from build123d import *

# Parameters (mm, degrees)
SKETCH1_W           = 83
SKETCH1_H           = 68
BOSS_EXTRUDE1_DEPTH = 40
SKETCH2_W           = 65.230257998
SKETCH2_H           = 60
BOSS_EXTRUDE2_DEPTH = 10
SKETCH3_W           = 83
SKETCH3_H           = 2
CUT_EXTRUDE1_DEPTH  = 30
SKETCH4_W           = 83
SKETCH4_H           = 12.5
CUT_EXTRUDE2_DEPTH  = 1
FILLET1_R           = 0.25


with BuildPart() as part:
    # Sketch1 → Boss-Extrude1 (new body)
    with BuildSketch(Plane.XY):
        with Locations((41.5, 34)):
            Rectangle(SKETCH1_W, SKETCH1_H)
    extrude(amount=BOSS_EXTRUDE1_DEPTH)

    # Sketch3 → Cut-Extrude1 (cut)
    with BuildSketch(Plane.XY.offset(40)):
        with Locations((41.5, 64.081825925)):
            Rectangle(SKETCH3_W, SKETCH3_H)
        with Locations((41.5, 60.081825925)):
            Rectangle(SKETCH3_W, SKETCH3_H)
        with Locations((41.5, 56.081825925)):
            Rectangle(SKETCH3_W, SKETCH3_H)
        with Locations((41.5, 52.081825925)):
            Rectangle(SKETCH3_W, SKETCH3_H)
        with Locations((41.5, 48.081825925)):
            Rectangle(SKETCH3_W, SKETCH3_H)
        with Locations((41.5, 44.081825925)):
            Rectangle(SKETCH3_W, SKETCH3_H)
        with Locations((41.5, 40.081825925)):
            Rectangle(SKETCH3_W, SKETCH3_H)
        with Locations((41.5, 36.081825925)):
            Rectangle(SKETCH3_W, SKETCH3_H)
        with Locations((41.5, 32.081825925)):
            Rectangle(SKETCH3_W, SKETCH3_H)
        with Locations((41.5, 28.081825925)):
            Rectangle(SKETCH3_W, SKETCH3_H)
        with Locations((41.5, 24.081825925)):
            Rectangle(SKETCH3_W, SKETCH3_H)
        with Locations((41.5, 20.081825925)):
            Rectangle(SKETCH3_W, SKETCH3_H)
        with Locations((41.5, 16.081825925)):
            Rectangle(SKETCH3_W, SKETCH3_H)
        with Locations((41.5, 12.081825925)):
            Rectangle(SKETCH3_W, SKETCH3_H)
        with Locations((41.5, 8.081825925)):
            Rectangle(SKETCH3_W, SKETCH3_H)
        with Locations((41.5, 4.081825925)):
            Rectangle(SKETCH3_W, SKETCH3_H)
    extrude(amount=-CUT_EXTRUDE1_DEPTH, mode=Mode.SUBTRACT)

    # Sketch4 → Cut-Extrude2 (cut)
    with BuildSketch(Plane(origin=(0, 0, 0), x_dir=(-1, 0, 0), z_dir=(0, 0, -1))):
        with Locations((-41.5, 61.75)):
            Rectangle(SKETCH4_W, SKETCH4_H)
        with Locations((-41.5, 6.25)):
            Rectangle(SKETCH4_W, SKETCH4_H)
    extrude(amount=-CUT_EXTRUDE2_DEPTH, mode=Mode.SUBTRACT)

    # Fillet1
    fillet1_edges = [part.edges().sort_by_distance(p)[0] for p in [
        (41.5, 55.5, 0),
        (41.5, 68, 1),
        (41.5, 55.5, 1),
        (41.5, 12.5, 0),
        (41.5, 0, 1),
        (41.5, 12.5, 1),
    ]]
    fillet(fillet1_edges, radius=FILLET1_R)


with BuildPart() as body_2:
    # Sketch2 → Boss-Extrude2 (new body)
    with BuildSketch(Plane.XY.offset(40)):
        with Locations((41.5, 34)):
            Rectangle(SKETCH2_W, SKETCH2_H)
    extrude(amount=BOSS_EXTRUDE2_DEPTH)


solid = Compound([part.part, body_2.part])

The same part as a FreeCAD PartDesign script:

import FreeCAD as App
import Part
import Sketcher

V = App.Vector


def edges_at(feature, points):
    """Names of the edges that pass closest to the given points."""
    edges = feature.Shape.Edges
    near = lambda p: min(range(len(edges)), key=lambda i: edges[i].distToShape(Part.Vertex(*p))[0])
    return sorted({f"Edge{near(p) + 1}" for p in points})

doc = App.newDocument("Part")
body = doc.addObject("PartDesign::Body", "Body")

# Sketch on XY plane
sketch1 = body.newObject("Sketcher::SketchObject", "Sketch")
sketch1.AttachmentSupport = (doc.getObject("XY_Plane"), [""])
sketch1.MapMode = "FlatFace"
sketch1.addGeometry([
    Part.LineSegment(V(0, 68, 0), V(0, 0, 0)),
    Part.LineSegment(V(0, 0, 0), V(83, 0, 0)),
    Part.LineSegment(V(83, 0, 0), V(83, 68, 0)),
    Part.LineSegment(V(83, 68, 0), V(0, 68, 0)),
], False)
sketch1.addConstraint([
    Sketcher.Constraint("Coincident", 0, 2, 1, 1),
    Sketcher.Constraint("Coincident", 1, 2, 2, 1),
    Sketcher.Constraint("Coincident", 2, 2, 3, 1),
    Sketcher.Constraint("Coincident", 3, 2, 0, 1),
    Sketcher.Constraint("Vertical", 0),
    Sketcher.Constraint("Horizontal", 1),
    Sketcher.Constraint("Vertical", 2),
    Sketcher.Constraint("Horizontal", 3),
    Sketcher.Constraint("Coincident", 0, 2, -1, 1),
    Sketcher.Constraint("DistanceX", 1, 1, 1, 2, 83.0),
    Sketcher.Constraint("DistanceY", 0, 2, 0, 1, 68.0),
])
pad1 = body.newObject("PartDesign::Pad", "Pad")
pad1.Profile = sketch1
pad1.Length = 40

# Sketch on XY plane
sketch2 = body.newObject("Sketcher::SketchObject", "Sketch001")
sketch2.AttachmentSupport = (doc.getObject("XY_Plane"), [""])
sketch2.MapMode = "FlatFace"
sketch2.AttachmentOffset = App.Placement(V(0, 0, 40), App.Rotation())
sketch2.addGeometry([
    Part.LineSegment(V(0, 65.1, 0), V(0, 63.1, 0)),  # 0
    Part.LineSegment(V(0, 63.1, 0), V(83, 63.1, 0)),  # 1
    Part.LineSegment(V(83, 63.1, 0), V(83, 65.1, 0)),  # 2
    Part.LineSegment(V(83, 65.1, 0), V(0, 65.1, 0)),  # 3
    Part.LineSegment(V(0, 61.1, 0), V(0, 59.1, 0)),  # 4
    Part.LineSegment(V(0, 59.1, 0), V(83, 59.1, 0)),  # 5
    Part.LineSegment(V(83, 59.1, 0), V(83, 61.1, 0)),  # 6
    Part.LineSegment(V(83, 61.1, 0), V(0, 61.1, 0)),  # 7
    Part.LineSegment(V(0, 57.1, 0), V(0, 55.1, 0)),  # 8
    Part.LineSegment(V(0, 55.1, 0), V(83, 55.1, 0)),  # 9
    Part.LineSegment(V(83, 55.1, 0), V(83, 57.1, 0)),  # 10
    Part.LineSegment(V(83, 57.1, 0), V(0, 57.1, 0)),  # 11
    Part.LineSegment(V(0, 53.1, 0), V(0, 51.1, 0)),  # 12
    Part.LineSegment(V(0, 51.1, 0), V(83, 51.1, 0)),  # 13
    Part.LineSegment(V(83, 51.1, 0), V(83, 53.1, 0)),  # 14
    Part.LineSegment(V(83, 53.1, 0), V(0, 53.1, 0)),  # 15
    Part.LineSegment(V(0, 49.1, 0), V(0, 47.1, 0)),  # 16
    Part.LineSegment(V(0, 47.1, 0), V(83, 47.1, 0)),  # 17
    Part.LineSegment(V(83, 47.1, 0), V(83, 49.1, 0)),  # 18
    Part.LineSegment(V(83, 49.1, 0), V(0, 49.1, 0)),  # 19
    Part.LineSegment(V(0, 45.1, 0), V(0, 43.1, 0)),  # 20
    Part.LineSegment(V(0, 43.1, 0), V(83, 43.1, 0)),  # 21
    Part.LineSegment(V(83, 43.1, 0), V(83, 45.1, 0)),  # 22
    Part.LineSegment(V(83, 45.1, 0), V(0, 45.1, 0)),  # 23
    Part.LineSegment(V(0, 41.1, 0), V(0, 39.1, 0)),  # 24
    Part.LineSegment(V(0, 39.1, 0), V(83, 39.1, 0)),  # 25
    Part.LineSegment(V(83, 39.1, 0), V(83, 41.1, 0)),  # 26
    Part.LineSegment(V(83, 41.1, 0), V(0, 41.1, 0)),  # 27
    Part.LineSegment(V(0, 37.1, 0), V(0, 35.1, 0)),  # 28
    Part.LineSegment(V(0, 35.1, 0), V(83, 35.1, 0)),  # 29
    Part.LineSegment(V(83, 35.1, 0), V(83, 37.1, 0)),  # 30
    Part.LineSegment(V(83, 37.1, 0), V(0, 37.1, 0)),  # 31
    Part.LineSegment(V(0, 33.1, 0), V(0, 31.1, 0)),  # 32
    Part.LineSegment(V(0, 31.1, 0), V(83, 31.1, 0)),  # 33
    Part.LineSegment(V(83, 31.1, 0), V(83, 33.1, 0)),  # 34
    Part.LineSegment(V(83, 33.1, 0), V(0, 33.1, 0)),  # 35
    Part.LineSegment(V(0, 29.1, 0), V(0, 27.1, 0)),  # 36
    Part.LineSegment(V(0, 27.1, 0), V(83, 27.1, 0)),  # 37
    Part.LineSegment(V(83, 27.1, 0), V(83, 29.1, 0)),  # 38
    Part.LineSegment(V(83, 29.1, 0), V(0, 29.1, 0)),  # 39
    Part.LineSegment(V(0, 25.1, 0), V(0, 23.1, 0)),  # 40
    Part.LineSegment(V(0, 23.1, 0), V(83, 23.1, 0)),  # 41
    Part.LineSegment(V(83, 23.1, 0), V(83, 25.1, 0)),  # 42
    Part.LineSegment(V(83, 25.1, 0), V(0, 25.1, 0)),  # 43
    Part.LineSegment(V(0, 21.1, 0), V(0, 19.1, 0)),  # 44
    Part.LineSegment(V(0, 19.1, 0), V(83, 19.1, 0)),  # 45
    Part.LineSegment(V(83, 19.1, 0), V(83, 21.1, 0)),  # 46
    Part.LineSegment(V(83, 21.1, 0), V(0, 21.1, 0)),  # 47
    Part.LineSegment(V(0, 17.1, 0), V(0, 15.1, 0)),  # 48
    Part.LineSegment(V(0, 15.1, 0), V(83, 15.1, 0)),  # 49
    Part.LineSegment(V(83, 15.1, 0), V(83, 17.1, 0)),  # 50
    Part.LineSegment(V(83, 17.1, 0), V(0, 17.1, 0)),  # 51
    Part.LineSegment(V(0, 13.1, 0), V(0, 11.1, 0)),  # 52
    Part.LineSegment(V(0, 11.1, 0), V(83, 11.1, 0)),  # 53
    Part.LineSegment(V(83, 11.1, 0), V(83, 13.1, 0)),  # 54
    Part.LineSegment(V(83, 13.1, 0), V(0, 13.1, 0)),  # 55
    Part.LineSegment(V(0, 9.1, 0), V(0, 7.1, 0)),  # 56
    Part.LineSegment(V(0, 7.1, 0), V(83, 7.1, 0)),  # 57
    Part.LineSegment(V(83, 7.1, 0), V(83, 9.1, 0)),  # 58
    Part.LineSegment(V(83, 9.1, 0), V(0, 9.1, 0)),  # 59
    Part.LineSegment(V(0, 5.1, 0), V(0, 3.1, 0)),  # 60
    Part.LineSegment(V(0, 3.1, 0), V(83, 3.1, 0)),  # 61
    Part.LineSegment(V(83, 3.1, 0), V(83, 5.1, 0)),  # 62
    Part.LineSegment(V(83, 5.1, 0), V(0, 5.1, 0)),  # 63
], False)
sketch2.addConstraint([
    Sketcher.Constraint("Coincident", 0, 2, 1, 1),
    Sketcher.Constraint("Coincident", 1, 2, 2, 1),
    Sketcher.Constraint("Coincident", 2, 2, 3, 1),
    Sketcher.Constraint("Coincident", 3, 2, 0, 1),
    Sketcher.Constraint("Coincident", 4, 2, 5, 1),
    Sketcher.Constraint("Coincident", 5, 2, 6, 1),
    Sketcher.Constraint("Coincident", 6, 2, 7, 1),
    Sketcher.Constraint("Coincident", 7, 2, 4, 1),
    Sketcher.Constraint("Coincident", 8, 2, 9, 1),
    Sketcher.Constraint("Coincident", 9, 2, 10, 1),
    Sketcher.Constraint("Coincident", 10, 2, 11, 1),
    Sketcher.Constraint("Coincident", 11, 2, 8, 1),
    Sketcher.Constraint("Coincident", 12, 2, 13, 1),
    Sketcher.Constraint("Coincident", 13, 2, 14, 1),
    Sketcher.Constraint("Coincident", 14, 2, 15, 1),
    Sketcher.Constraint("Coincident", 15, 2, 12, 1),
    Sketcher.Constraint("Coincident", 16, 2, 17, 1),
    Sketcher.Constraint("Coincident", 17, 2, 18, 1),
    Sketcher.Constraint("Coincident", 18, 2, 19, 1),
    Sketcher.Constraint("Coincident", 19, 2, 16, 1),
    Sketcher.Constraint("Coincident", 20, 2, 21, 1),
    Sketcher.Constraint("Coincident", 21, 2, 22, 1),
    Sketcher.Constraint("Coincident", 22, 2, 23, 1),
    Sketcher.Constraint("Coincident", 23, 2, 20, 1),
    Sketcher.Constraint("Coincident", 24, 2, 25, 1),
    Sketcher.Constraint("Coincident", 25, 2, 26, 1),
    Sketcher.Constraint("Coincident", 26, 2, 27, 1),
    Sketcher.Constraint("Coincident", 27, 2, 24, 1),
    Sketcher.Constraint("Coincident", 28, 2, 29, 1),
    Sketcher.Constraint("Coincident", 29, 2, 30, 1),
    Sketcher.Constraint("Coincident", 30, 2, 31, 1),
    Sketcher.Constraint("Coincident", 31, 2, 28, 1),
    Sketcher.Constraint("Coincident", 32, 2, 33, 1),
    Sketcher.Constraint("Coincident", 33, 2, 34, 1),
    Sketcher.Constraint("Coincident", 34, 2, 35, 1),
    Sketcher.Constraint("Coincident", 35, 2, 32, 1),
    Sketcher.Constraint("Coincident", 36, 2, 37, 1),
    Sketcher.Constraint("Coincident", 37, 2, 38, 1),
    Sketcher.Constraint("Coincident", 38, 2, 39, 1),
    Sketcher.Constraint("Coincident", 39, 2, 36, 1),
    Sketcher.Constraint("Coincident", 40, 2, 41, 1),
    Sketcher.Constraint("Coincident", 41, 2, 42, 1),
    Sketcher.Constraint("Coincident", 42, 2, 43, 1),
    Sketcher.Constraint("Coincident", 43, 2, 40, 1),
    Sketcher.Constraint("Coincident", 44, 2, 45, 1),
    Sketcher.Constraint("Coincident", 45, 2, 46, 1),
    Sketcher.Constraint("Coincident", 46, 2, 47, 1),
    Sketcher.Constraint("Coincident", 47, 2, 44, 1),
    Sketcher.Constraint("Coincident", 48, 2, 49, 1),
    Sketcher.Constraint("Coincident", 49, 2, 50, 1),
    Sketcher.Constraint("Coincident", 50, 2, 51, 1),
    Sketcher.Constraint("Coincident", 51, 2, 48, 1),
    Sketcher.Constraint("Coincident", 52, 2, 53, 1),
    Sketcher.Constraint("Coincident", 53, 2, 54, 1),
    Sketcher.Constraint("Coincident", 54, 2, 55, 1),
    Sketcher.Constraint("Coincident", 55, 2, 52, 1),
    Sketcher.Constraint("Coincident", 56, 2, 57, 1),
    Sketcher.Constraint("Coincident", 57, 2, 58, 1),
    Sketcher.Constraint("Coincident", 58, 2, 59, 1),
    Sketcher.Constraint("Coincident", 59, 2, 56, 1),
    Sketcher.Constraint("Coincident", 60, 2, 61, 1),
    Sketcher.Constraint("Coincident", 61, 2, 62, 1),
    Sketcher.Constraint("Coincident", 62, 2, 63, 1),
    Sketcher.Constraint("Coincident", 63, 2, 60, 1),
    Sketcher.Constraint("Vertical", 0),
    Sketcher.Constraint("Horizontal", 1),
    Sketcher.Constraint("Vertical", 2),
    Sketcher.Constraint("Horizontal", 3),
    Sketcher.Constraint("Vertical", 4),
    Sketcher.Constraint("Horizontal", 5),
    Sketcher.Constraint("Vertical", 6),
    Sketcher.Constraint("Horizontal", 7),
    Sketcher.Constraint("Vertical", 8),
    Sketcher.Constraint("Horizontal", 9),
    Sketcher.Constraint("Vertical", 10),
    Sketcher.Constraint("Horizontal", 11),
    Sketcher.Constraint("Vertical", 12),
    Sketcher.Constraint("Horizontal", 13),
    Sketcher.Constraint("Vertical", 14),
    Sketcher.Constraint("Horizontal", 15),
    Sketcher.Constraint("Vertical", 16),
    Sketcher.Constraint("Horizontal", 17),
    Sketcher.Constraint("Vertical", 18),
    Sketcher.Constraint("Horizontal", 19),
    Sketcher.Constraint("Vertical", 20),
    Sketcher.Constraint("Horizontal", 21),
    Sketcher.Constraint("Vertical", 22),
    Sketcher.Constraint("Horizontal", 23),
    Sketcher.Constraint("Vertical", 24),
    Sketcher.Constraint("Horizontal", 25),
    Sketcher.Constraint("Vertical", 26),
    Sketcher.Constraint("Horizontal", 27),
    Sketcher.Constraint("Vertical", 28),
    Sketcher.Constraint("Horizontal", 29),
    Sketcher.Constraint("Vertical", 30),
    Sketcher.Constraint("Horizontal", 31),
    Sketcher.Constraint("Vertical", 32),
    Sketcher.Constraint("Horizontal", 33),
    Sketcher.Constraint("Vertical", 34),
    Sketcher.Constraint("Horizontal", 35),
    Sketcher.Constraint("Vertical", 36),
    Sketcher.Constraint("Horizontal", 37),
    Sketcher.Constraint("Vertical", 38),
    Sketcher.Constraint("Horizontal", 39),
    Sketcher.Constraint("Vertical", 40),
    Sketcher.Constraint("Horizontal", 41),
    Sketcher.Constraint("Vertical", 42),
    Sketcher.Constraint("Horizontal", 43),
    Sketcher.Constraint("Vertical", 44),
    Sketcher.Constraint("Horizontal", 45),
    Sketcher.Constraint("Vertical", 46),
    Sketcher.Constraint("Horizontal", 47),
    Sketcher.Constraint("Vertical", 48),
    Sketcher.Constraint("Horizontal", 49),
    Sketcher.Constraint("Vertical", 50),
    Sketcher.Constraint("Horizontal", 51),
    Sketcher.Constraint("Vertical", 52),
    Sketcher.Constraint("Horizontal", 53),
    Sketcher.Constraint("Vertical", 54),
    Sketcher.Constraint("Horizontal", 55),
    Sketcher.Constraint("Vertical", 56),
    Sketcher.Constraint("Horizontal", 57),
    Sketcher.Constraint("Vertical", 58),
    Sketcher.Constraint("Horizontal", 59),
    Sketcher.Constraint("Vertical", 60),
    Sketcher.Constraint("Horizontal", 61),
    Sketcher.Constraint("Vertical", 62),
    Sketcher.Constraint("Horizontal", 63),
    Sketcher.Constraint("PointOnObject", 0, 2, -2),
    Sketcher.Constraint("PointOnObject", 4, 2, -2),
    Sketcher.Constraint("PointOnObject", 8, 2, -2),
    Sketcher.Constraint("PointOnObject", 12, 2, -2),
    Sketcher.Constraint("PointOnObject", 16, 2, -2),
    Sketcher.Constraint("PointOnObject", 20, 2, -2),
    Sketcher.Constraint("PointOnObject", 24, 2, -2),
    Sketcher.Constraint("PointOnObject", 28, 2, -2),
    Sketcher.Constraint("PointOnObject", 32, 2, -2),
    Sketcher.Constraint("PointOnObject", 36, 2, -2),
    Sketcher.Constraint("PointOnObject", 40, 2, -2),
    Sketcher.Constraint("PointOnObject", 44, 2, -2),
    Sketcher.Constraint("PointOnObject", 48, 2, -2),
    Sketcher.Constraint("PointOnObject", 52, 2, -2),
    Sketcher.Constraint("PointOnObject", 56, 2, -2),
    Sketcher.Constraint("PointOnObject", 60, 2, -2),
    Sketcher.Constraint("Vertical", 2, 2, 5, 2),
    Sketcher.Constraint("Vertical", 6, 2, 9, 2),
    Sketcher.Constraint("Vertical", 10, 2, 13, 2),
    Sketcher.Constraint("Vertical", 14, 2, 17, 2),
    Sketcher.Constraint("Vertical", 18, 2, 21, 2),
    Sketcher.Constraint("Vertical", 22, 2, 25, 2),
    Sketcher.Constraint("Vertical", 26, 2, 29, 2),
    Sketcher.Constraint("Vertical", 30, 2, 33, 2),
    Sketcher.Constraint("Vertical", 34, 2, 37, 2),
    Sketcher.Constraint("Vertical", 38, 2, 41, 2),
    Sketcher.Constraint("Vertical", 42, 2, 45, 2),
    Sketcher.Constraint("Vertical", 46, 2, 49, 2),
    Sketcher.Constraint("Vertical", 50, 2, 53, 2),
    Sketcher.Constraint("Vertical", 54, 2, 57, 2),
    Sketcher.Constraint("Vertical", 58, 2, 61, 2),
    Sketcher.Constraint("Equal", 2, 4),
    Sketcher.Constraint("Equal", 6, 8),
    Sketcher.Constraint("Equal", 10, 12),
    Sketcher.Constraint("Equal", 14, 16),
    Sketcher.Constraint("Equal", 18, 20),
    Sketcher.Constraint("Equal", 22, 24),
    Sketcher.Constraint("Equal", 26, 28),
    Sketcher.Constraint("Equal", 30, 32),
    Sketcher.Constraint("Equal", 34, 36),
    Sketcher.Constraint("Equal", 38, 40),
    Sketcher.Constraint("Equal", 42, 44),
    Sketcher.Constraint("Equal", 46, 48),
    Sketcher.Constraint("Equal", 50, 52),
    Sketcher.Constraint("Equal", 54, 56),
    Sketcher.Constraint("Equal", 58, 60),
    Sketcher.Constraint("DistanceX", 1, 1, 1, 2, 83.0),
    Sketcher.Constraint("DistanceY", 0, 2, 0, 1, 2.0),
    Sketcher.Constraint("DistanceY", -1, 1, 0, 2, 63.081826),
    Sketcher.Constraint("DistanceY", -1, 1, 4, 2, 59.081826),
    Sketcher.Constraint("DistanceY", -1, 1, 8, 2, 55.081826),
    Sketcher.Constraint("DistanceY", -1, 1, 12, 2, 51.081826),
    Sketcher.Constraint("DistanceY", -1, 1, 16, 2, 47.081826),
    Sketcher.Constraint("DistanceY", -1, 1, 20, 2, 43.081826),
    Sketcher.Constraint("DistanceY", -1, 1, 24, 2, 39.081826),
    Sketcher.Constraint("DistanceY", -1, 1, 28, 2, 35.081826),
    Sketcher.Constraint("DistanceY", -1, 1, 32, 2, 31.081826),
    Sketcher.Constraint("DistanceY", -1, 1, 36, 2, 27.081826),
    Sketcher.Constraint("DistanceY", -1, 1, 40, 2, 23.081826),
    Sketcher.Constraint("DistanceY", -1, 1, 44, 2, 19.081826),
    Sketcher.Constraint("DistanceY", -1, 1, 48, 2, 15.081826),
    Sketcher.Constraint("DistanceY", -1, 1, 52, 2, 11.081826),
    Sketcher.Constraint("DistanceY", -1, 1, 56, 2, 7.081826),
    Sketcher.Constraint("DistanceY", -1, 1, 60, 2, 3.081826),
])
pocket1 = body.newObject("PartDesign::Pocket", "Pocket")
pocket1.Profile = sketch2
pocket1.Length = 30

# Sketch on XY plane
sketch3 = body.newObject("Sketcher::SketchObject", "Sketch002")
sketch3.AttachmentSupport = (doc.getObject("XY_Plane"), [""])
sketch3.MapMode = "FlatFace"
sketch3.addGeometry([
    Part.LineSegment(V(83, 68, 0), V(83, 56, 0)),  # 0
    Part.LineSegment(V(83, 56, 0), V(0, 56, 0)),  # 1
    Part.LineSegment(V(0, 56, 0), V(0, 68, 0)),  # 2
    Part.LineSegment(V(0, 68, 0), V(83, 68, 0)),  # 3
    Part.LineSegment(V(83, 12, 0), V(83, 0, 0)),  # 4
    Part.LineSegment(V(83, 0, 0), V(0, 0, 0)),  # 5
    Part.LineSegment(V(0, 0, 0), V(0, 12, 0)),  # 6
    Part.LineSegment(V(0, 12, 0), V(83, 12, 0)),  # 7
], False)
sketch3.addConstraint([
    Sketcher.Constraint("Coincident", 0, 2, 1, 1),
    Sketcher.Constraint("Coincident", 1, 2, 2, 1),
    Sketcher.Constraint("Coincident", 2, 2, 3, 1),
    Sketcher.Constraint("Coincident", 3, 2, 0, 1),
    Sketcher.Constraint("Coincident", 4, 2, 5, 1),
    Sketcher.Constraint("Coincident", 5, 2, 6, 1),
    Sketcher.Constraint("Coincident", 6, 2, 7, 1),
    Sketcher.Constraint("Coincident", 7, 2, 4, 1),
    Sketcher.Constraint("Vertical", 0),
    Sketcher.Constraint("Horizontal", 1),
    Sketcher.Constraint("Vertical", 2),
    Sketcher.Constraint("Horizontal", 3),
    Sketcher.Constraint("Vertical", 4),
    Sketcher.Constraint("Horizontal", 5),
    Sketcher.Constraint("Vertical", 6),
    Sketcher.Constraint("Horizontal", 7),
    Sketcher.Constraint("Coincident", 5, 2, -1, 1),
    Sketcher.Constraint("PointOnObject", 1, 2, -2),
    Sketcher.Constraint("Vertical", 3, 2, 4, 2),
    Sketcher.Constraint("Equal", 2, 4),
    Sketcher.Constraint("DistanceX", 1, 2, 1, 1, 83.0),
    Sketcher.Constraint("DistanceY", 0, 2, 0, 1, 12.5),
    Sketcher.Constraint("DistanceY", -1, 1, 2, 2, 68.0),
])
pocket2 = body.newObject("PartDesign::Pocket", "Pocket001")
pocket2.Profile = sketch3
pocket2.Length = 1
pocket2.Reversed = True
doc.recompute()

fillet = body.newObject("PartDesign::Fillet", "Fillet")
fillet.Base = (pocket2, edges_at(pocket2, [
    (41.5, 55.5, 0),
    (41.5, 68, 1),
    (41.5, 55.5, 1),
    (41.5, 12.5, 0),
    (41.5, 0, 1),
    (41.5, 12.5, 1),
]))
fillet.Radius = 0.25
body2 = doc.addObject("PartDesign::Body", "Body001")

# Sketch on XY plane
sketch4 = body2.newObject("Sketcher::SketchObject", "Sketch003")
sketch4.AttachmentSupport = (doc.getObject("XY_Plane001"), [""])
sketch4.MapMode = "FlatFace"
sketch4.AttachmentOffset = App.Placement(V(0, 0, 40), App.Rotation())
sketch4.addGeometry([
    Part.LineSegment(V(9, 64, 0), V(9, 4, 0)),
    Part.LineSegment(V(9, 4, 0), V(74, 4, 0)),
    Part.LineSegment(V(74, 4, 0), V(74, 64, 0)),
    Part.LineSegment(V(74, 64, 0), V(9, 64, 0)),
], False)
sketch4.addConstraint([
    Sketcher.Constraint("Coincident", 0, 2, 1, 1),
    Sketcher.Constraint("Coincident", 1, 2, 2, 1),
    Sketcher.Constraint("Coincident", 2, 2, 3, 1),
    Sketcher.Constraint("Coincident", 3, 2, 0, 1),
    Sketcher.Constraint("Vertical", 0),
    Sketcher.Constraint("Horizontal", 1),
    Sketcher.Constraint("Vertical", 2),
    Sketcher.Constraint("Horizontal", 3),
    Sketcher.Constraint("DistanceY", 0, 2, 0, 1, 60.0),
    Sketcher.Constraint("DistanceY", -1, 1, 0, 2, 4.0),
    Sketcher.Constraint("DistanceX", 1, 1, 1, 2, 65.230258),
    Sketcher.Constraint("DistanceX", -1, 1, 0, 2, 8.884871),
])
pad2 = body2.newObject("PartDesign::Pad", "Pad001")
pad2.Profile = sketch4
pad2.Length = 10

doc.recompute()
